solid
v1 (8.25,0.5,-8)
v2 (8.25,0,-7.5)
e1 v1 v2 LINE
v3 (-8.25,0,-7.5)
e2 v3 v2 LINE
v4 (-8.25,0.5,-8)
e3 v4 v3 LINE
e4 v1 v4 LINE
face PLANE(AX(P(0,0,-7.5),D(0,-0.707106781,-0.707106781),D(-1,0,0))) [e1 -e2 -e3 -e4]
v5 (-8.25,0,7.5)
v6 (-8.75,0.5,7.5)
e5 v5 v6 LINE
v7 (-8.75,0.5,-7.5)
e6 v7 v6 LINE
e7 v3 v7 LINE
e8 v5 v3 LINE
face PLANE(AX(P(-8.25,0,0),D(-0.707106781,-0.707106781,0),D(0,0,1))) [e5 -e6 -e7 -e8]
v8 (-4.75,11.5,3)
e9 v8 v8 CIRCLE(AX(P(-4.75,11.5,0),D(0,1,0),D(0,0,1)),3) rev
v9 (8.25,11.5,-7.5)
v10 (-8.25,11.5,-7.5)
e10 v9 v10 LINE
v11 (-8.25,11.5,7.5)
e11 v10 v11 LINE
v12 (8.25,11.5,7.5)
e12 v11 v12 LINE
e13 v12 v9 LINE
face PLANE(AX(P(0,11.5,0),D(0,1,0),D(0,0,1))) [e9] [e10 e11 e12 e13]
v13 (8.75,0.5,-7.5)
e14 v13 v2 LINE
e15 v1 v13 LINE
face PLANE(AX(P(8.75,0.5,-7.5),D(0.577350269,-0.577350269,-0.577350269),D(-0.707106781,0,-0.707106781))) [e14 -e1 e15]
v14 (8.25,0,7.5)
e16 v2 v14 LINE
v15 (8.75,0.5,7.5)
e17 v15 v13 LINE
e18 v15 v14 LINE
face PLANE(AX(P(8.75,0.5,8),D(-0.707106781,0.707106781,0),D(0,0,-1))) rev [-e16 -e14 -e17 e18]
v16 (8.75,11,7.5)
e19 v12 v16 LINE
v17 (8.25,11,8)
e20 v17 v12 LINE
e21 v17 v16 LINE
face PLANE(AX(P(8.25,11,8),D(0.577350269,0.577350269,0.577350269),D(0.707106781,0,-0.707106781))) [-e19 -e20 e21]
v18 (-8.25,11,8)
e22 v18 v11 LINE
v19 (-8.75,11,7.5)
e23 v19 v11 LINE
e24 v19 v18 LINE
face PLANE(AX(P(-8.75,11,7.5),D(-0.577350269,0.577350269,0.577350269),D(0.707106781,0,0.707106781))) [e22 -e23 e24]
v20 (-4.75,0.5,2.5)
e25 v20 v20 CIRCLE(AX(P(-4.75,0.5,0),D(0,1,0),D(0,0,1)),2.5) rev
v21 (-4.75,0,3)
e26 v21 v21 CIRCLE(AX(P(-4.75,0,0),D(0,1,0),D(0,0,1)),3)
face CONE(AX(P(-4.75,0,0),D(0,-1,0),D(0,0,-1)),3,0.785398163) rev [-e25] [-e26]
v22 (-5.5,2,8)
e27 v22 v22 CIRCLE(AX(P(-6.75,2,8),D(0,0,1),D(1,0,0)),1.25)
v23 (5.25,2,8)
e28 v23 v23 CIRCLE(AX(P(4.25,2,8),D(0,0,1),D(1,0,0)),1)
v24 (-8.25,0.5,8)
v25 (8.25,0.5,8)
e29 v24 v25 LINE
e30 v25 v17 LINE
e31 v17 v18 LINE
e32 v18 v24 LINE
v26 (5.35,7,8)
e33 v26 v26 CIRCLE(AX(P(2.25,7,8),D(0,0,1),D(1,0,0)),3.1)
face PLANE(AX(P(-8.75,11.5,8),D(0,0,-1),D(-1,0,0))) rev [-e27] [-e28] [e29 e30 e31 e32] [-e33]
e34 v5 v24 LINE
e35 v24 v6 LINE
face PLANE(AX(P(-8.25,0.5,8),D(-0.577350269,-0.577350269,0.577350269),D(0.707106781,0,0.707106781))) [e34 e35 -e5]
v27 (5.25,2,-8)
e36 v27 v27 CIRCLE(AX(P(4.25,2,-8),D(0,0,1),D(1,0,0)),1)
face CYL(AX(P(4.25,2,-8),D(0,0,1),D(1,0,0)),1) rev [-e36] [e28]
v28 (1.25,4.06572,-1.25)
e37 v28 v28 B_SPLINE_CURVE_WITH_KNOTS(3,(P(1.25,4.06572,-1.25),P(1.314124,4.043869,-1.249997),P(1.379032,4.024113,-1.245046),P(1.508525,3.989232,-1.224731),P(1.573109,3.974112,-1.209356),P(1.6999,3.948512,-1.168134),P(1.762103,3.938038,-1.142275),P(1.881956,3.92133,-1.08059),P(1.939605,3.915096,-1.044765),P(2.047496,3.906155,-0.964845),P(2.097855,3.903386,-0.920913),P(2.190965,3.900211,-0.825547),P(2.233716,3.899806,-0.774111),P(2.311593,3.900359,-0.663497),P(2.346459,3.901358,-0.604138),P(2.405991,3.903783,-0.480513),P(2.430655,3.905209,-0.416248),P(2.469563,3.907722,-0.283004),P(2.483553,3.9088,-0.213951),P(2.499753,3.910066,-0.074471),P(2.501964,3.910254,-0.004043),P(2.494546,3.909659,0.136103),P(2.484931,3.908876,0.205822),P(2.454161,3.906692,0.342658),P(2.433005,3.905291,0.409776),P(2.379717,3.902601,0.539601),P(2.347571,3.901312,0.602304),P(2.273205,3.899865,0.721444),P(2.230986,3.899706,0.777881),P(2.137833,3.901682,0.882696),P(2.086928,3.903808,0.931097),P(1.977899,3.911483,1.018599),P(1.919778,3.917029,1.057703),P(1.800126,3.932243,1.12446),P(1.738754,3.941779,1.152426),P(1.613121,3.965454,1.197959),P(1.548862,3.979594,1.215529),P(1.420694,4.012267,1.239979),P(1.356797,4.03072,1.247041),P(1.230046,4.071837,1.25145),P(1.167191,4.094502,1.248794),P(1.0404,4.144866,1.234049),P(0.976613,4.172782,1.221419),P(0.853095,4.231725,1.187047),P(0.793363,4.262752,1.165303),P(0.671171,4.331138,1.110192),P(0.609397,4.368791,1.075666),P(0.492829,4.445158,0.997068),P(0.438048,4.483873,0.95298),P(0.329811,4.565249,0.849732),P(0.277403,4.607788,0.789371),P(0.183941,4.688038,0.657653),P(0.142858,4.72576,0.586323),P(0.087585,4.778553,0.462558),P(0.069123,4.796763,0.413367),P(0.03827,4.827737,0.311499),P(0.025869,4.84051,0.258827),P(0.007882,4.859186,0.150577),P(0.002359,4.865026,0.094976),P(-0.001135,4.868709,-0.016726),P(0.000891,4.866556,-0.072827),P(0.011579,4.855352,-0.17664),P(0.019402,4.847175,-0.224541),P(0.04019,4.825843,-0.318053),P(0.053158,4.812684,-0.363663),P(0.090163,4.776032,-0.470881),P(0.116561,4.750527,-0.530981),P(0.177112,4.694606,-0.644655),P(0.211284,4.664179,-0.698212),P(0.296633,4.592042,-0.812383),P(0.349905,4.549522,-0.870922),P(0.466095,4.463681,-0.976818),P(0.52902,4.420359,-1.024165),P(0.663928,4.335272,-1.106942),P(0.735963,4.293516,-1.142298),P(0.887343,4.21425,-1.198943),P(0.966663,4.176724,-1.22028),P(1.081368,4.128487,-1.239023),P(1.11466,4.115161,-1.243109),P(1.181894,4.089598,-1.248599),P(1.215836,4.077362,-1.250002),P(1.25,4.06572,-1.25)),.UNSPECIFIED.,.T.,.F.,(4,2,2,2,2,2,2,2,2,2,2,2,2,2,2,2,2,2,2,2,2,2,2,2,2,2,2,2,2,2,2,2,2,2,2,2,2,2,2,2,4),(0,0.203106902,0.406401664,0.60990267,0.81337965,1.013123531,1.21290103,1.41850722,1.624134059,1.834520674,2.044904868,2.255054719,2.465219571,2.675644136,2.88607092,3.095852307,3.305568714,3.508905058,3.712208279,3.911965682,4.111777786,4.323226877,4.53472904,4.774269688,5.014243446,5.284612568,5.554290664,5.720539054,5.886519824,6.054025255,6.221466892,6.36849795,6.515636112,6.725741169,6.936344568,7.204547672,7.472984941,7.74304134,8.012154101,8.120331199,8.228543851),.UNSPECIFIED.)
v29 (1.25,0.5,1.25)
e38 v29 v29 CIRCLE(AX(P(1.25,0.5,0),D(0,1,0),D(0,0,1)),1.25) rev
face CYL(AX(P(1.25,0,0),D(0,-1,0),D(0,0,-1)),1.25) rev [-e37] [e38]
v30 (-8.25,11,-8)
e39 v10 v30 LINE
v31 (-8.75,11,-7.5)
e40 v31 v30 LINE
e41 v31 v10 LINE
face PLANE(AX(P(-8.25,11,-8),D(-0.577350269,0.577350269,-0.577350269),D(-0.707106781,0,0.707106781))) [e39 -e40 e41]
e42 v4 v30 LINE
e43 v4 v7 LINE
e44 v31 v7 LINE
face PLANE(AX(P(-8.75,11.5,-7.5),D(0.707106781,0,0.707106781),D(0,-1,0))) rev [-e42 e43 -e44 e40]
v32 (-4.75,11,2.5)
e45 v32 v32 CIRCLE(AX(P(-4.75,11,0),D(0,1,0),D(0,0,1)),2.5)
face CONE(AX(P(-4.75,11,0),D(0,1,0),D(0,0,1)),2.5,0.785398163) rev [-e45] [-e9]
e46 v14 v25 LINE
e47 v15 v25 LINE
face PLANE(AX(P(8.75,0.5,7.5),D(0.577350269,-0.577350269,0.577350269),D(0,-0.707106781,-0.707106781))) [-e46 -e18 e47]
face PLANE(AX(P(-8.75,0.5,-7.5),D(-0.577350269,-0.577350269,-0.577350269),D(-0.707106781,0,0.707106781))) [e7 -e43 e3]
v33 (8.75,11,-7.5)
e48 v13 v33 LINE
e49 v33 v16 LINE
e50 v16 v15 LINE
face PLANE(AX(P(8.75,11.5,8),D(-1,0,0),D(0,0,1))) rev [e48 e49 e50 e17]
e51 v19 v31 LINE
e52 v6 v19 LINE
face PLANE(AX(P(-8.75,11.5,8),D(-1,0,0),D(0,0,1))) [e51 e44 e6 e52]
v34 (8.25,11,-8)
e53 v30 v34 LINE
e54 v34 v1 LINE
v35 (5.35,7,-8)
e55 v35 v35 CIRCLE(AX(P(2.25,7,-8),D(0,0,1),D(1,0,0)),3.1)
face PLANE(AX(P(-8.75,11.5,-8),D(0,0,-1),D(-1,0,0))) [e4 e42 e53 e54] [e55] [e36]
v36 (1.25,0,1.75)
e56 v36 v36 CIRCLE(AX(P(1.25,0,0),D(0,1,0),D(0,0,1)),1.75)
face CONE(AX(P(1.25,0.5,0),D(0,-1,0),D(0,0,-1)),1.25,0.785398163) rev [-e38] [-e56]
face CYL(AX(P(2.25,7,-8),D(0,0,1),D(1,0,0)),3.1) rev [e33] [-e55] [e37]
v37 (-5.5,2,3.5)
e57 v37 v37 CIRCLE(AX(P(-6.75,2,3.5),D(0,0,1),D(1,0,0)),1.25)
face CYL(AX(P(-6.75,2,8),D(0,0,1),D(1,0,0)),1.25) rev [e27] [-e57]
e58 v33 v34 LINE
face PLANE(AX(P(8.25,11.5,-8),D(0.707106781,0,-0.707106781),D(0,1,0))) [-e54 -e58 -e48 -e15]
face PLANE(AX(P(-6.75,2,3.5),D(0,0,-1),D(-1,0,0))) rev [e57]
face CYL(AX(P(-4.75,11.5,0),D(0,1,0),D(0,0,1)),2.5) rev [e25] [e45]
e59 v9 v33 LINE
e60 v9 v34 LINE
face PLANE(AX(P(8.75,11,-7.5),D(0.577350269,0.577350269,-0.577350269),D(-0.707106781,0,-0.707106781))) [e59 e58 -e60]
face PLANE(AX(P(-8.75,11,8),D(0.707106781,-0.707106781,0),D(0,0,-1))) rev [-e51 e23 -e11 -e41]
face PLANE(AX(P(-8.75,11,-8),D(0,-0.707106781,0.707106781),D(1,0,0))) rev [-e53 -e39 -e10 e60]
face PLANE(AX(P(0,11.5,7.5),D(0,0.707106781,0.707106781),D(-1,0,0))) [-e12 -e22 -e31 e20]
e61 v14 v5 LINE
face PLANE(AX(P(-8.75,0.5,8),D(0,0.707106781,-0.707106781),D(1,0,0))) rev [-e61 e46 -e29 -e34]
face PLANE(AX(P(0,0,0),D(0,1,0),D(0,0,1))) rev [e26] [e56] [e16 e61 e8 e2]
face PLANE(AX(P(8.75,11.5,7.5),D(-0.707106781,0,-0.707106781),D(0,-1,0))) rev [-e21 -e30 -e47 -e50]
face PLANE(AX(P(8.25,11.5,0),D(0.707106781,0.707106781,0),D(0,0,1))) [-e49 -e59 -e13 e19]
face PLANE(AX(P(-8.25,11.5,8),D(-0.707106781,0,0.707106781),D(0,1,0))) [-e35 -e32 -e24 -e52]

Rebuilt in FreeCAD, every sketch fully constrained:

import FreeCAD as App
import Part
import Sketcher
from FreeCAD import Vector
Q = App.Units.Quantity


def edges_at(feature, points):
    """Names of the edges that pass closest to the given points."""
    edges = feature.Shape.Edges
    near = lambda p: min(range(len(edges)), key=lambda i: edges[i].distToShape(Part.Vertex(*p))[0])
    return sorted({f"Edge{near(p) + 1}" for p in points})


def add_polygon(sketch, points):
    """Adds a closed chain of lines whose ends are joined by coincident constraints."""
    first, n = sketch.GeometryCount, len(points)
    for a, b in zip(points, points[1:] + points[:1]):
        sketch.addGeometry(Part.LineSegment(App.Vector(*a, 0), App.Vector(*b, 0)), False)
    for i in range(n):
        sketch.addConstraint(Sketcher.Constraint("Coincident", first + i, 2, first + (i + 1) % n, 1))

doc = App.newDocument("Part")
body = doc.addObject("PartDesign::Body", "Body")

sketch1 = doc.addObject("Sketcher::SketchObject", "Sketch")
body.addObject(sketch1)
sketch1.AttachmentSupport = (doc.XZ_Plane, [""])
sketch1.MapMode = "FlatFace"
add_polygon(sketch1, [(-9, -8), (-9, 8), (9, 8), (9, -8)])
sketch1.addConstraint(Sketcher.Constraint("Vertical", 0))
sketch1.addConstraint(Sketcher.Constraint("Horizontal", 1))
sketch1.addConstraint(Sketcher.Constraint("Vertical", 2))
sketch1.addConstraint(Sketcher.Constraint("Horizontal", 3))
sketch1.addConstraint(Sketcher.Constraint("Symmetric", 0, 2, 2, 2, -1, 1))
sketch1.addConstraint(Sketcher.Constraint("DistanceY", 0, 1, 0, 2, Q("16 mm")))
sketch1.addConstraint(Sketcher.Constraint("DistanceX", 1, 1, 1, 2, Q("17.5 mm")))
pad1 = doc.addObject("PartDesign::Pad", "Pad")
body.addObject(pad1)
pad1.Profile = sketch1
pad1.Length = 11.5
pad1.Reversed = True

sketch2 = doc.addObject("Sketcher::SketchObject", "Sketch001")
body.addObject(sketch2)
sketch2.AttachmentSupport = (doc.XY_Plane, [""])
sketch2.MapMode = "FlatFace"
sketch2.AttachmentOffset = App.Placement(Vector(0, 0, 8), App.Rotation())
sketch2.addGeometry(Part.Circle(Vector(2.2, 7, 0), Vector(0, 0, 1), 3.1), False)
sketch2.addGeometry(Part.Circle(Vector(4.2, 2, 0), Vector(0, 0, 1), 1), False)
sketch2.addConstraint(Sketcher.Constraint("Diameter", 1, Q("2 mm")))
sketch2.addConstraint(Sketcher.Constraint("Diameter", 0, Q("6.2 mm")))
sketch2.addConstraint(Sketcher.Constraint("DistanceY", -1, 1, 0, 3, Q("7 mm")))
sketch2.addConstraint(Sketcher.Constraint("DistanceY", -1, 1, 1, 3, Q("2 mm")))
sketch2.addConstraint(Sketcher.Constraint("DistanceX", 0, 3, 1, 3, Q("2 mm")))
sketch2.addConstraint(Sketcher.Constraint("DistanceX", -1, 1, 0, 3, Q("2.25 mm")))
pocket1 = doc.addObject("PartDesign::Pocket", "Pocket")
body.addObject(pocket1)
pocket1.Profile = sketch2
pocket1.Type = "ThroughAll"

sketch3 = doc.addObject("Sketcher::SketchObject", "Sketch002")
body.addObject(sketch3)
sketch3.AttachmentSupport = (doc.XY_Plane, [""])
sketch3.MapMode = "FlatFace"
sketch3.AttachmentOffset = App.Placement(Vector(0, 0, 8), App.Rotation())
sketch3.addGeometry(Part.Circle(Vector(-6.8, 2, 0), Vector(0, 0, 1), 1.2), False)
sketch3.addConstraint(Sketcher.Constraint("Diameter", 0, Q("2.5 mm")))
sketch3.addConstraint(Sketcher.Constraint("DistanceY", -1, 1, 0, 3, Q("2 mm")))
sketch3.addConstraint(Sketcher.Constraint("DistanceX", 0, 3, -1, 1, Q("6.75 mm")))
doc.recompute()
hole = doc.addObject("PartDesign::Hole", "Hole")
body.addObject(hole)
hole.Profile = sketch3
hole.ThreadType = "None"
hole.Diameter = 2.5
hole.DepthType = "Dimension"
hole.Depth = 4.5
hole.DrillPoint = "Flat"

sketch4 = doc.addObject("Sketcher::SketchObject", "Sketch003")
body.addObject(sketch4)
sketch4.AttachmentSupport = (doc.XZ_Plane, [""])
sketch4.MapMode = "FlatFace"
sketch4.AttachmentOffset = App.Placement(Vector(0, 0, -11.5), App.Rotation())
sketch4.addGeometry(Part.Circle(Vector(-4.8, 0, 0), Vector(0, 0, 1), 2.5), False)
sketch4.addConstraint(Sketcher.Constraint("PointOnObject", 0, 3, -1))
sketch4.addConstraint(Sketcher.Constraint("Diameter", 0, Q("5 mm")))
sketch4.addConstraint(Sketcher.Constraint("DistanceX", 0, 3, -1, 1, Q("4.75 mm")))
doc.recompute()
hole2 = doc.addObject("PartDesign::Hole", "Hole001")
body.addObject(hole2)
hole2.Profile = sketch4
hole2.ThreadType = "None"
hole2.Diameter = 5
hole2.DepthType = "ThroughAll"
hole2.Reversed = True

sketch5 = doc.addObject("Sketcher::SketchObject", "Sketch004")
body.addObject(sketch5)
sketch5.AttachmentSupport = (doc.XZ_Plane, [""])
sketch5.MapMode = "FlatFace"
sketch5.addGeometry(Part.Circle(Vector(1.2, 0, 0), Vector(0, 0, 1), 1.2), False)
sketch5.addConstraint(Sketcher.Constraint("PointOnObject", 0, 3, -1))
sketch5.addConstraint(Sketcher.Constraint("Diameter", 0, Q("2.5 mm")))
sketch5.addConstraint(Sketcher.Constraint("DistanceX", -1, 1, 0, 3, Q("1.25 mm")))
doc.recompute()
hole3 = doc.addObject("PartDesign::Hole", "Hole002")
body.addObject(hole3)
hole3.Profile = sketch5
hole3.ThreadType = "None"
hole3.Diameter = 2.5
hole3.DepthType = "Dimension"
hole3.Depth = 6.999
hole3.DrillPoint = "Angled"
hole3.DrillPointAngle = 118
doc.recompute()

chamfer = doc.addObject("PartDesign::Chamfer", "Chamfer")
body.addObject(chamfer)
chamfer.Base = (hole3, edges_at(hole3, [
    (0, 11.5, -8),
    (-8.75, 11.5, 0),
    (-2.25, 11.5, 0),
    (-2.25, 0, 0),
    (0, 0, 0),
    (0, 11.5, 8),
    (-8.75, 0, 0),
    (0, 0, -8),
    (8.75, 0, 0),
    (0, 0, 8),
    (8.75, 11.5, 0),
    (-8.75, 5.75, 8),
    (-8.75, 5.75, -8),
    (8.75, 5.75, -8),
    (8.75, 5.75, 8),
]))
chamfer.Size = 0.5

doc.recompute()
